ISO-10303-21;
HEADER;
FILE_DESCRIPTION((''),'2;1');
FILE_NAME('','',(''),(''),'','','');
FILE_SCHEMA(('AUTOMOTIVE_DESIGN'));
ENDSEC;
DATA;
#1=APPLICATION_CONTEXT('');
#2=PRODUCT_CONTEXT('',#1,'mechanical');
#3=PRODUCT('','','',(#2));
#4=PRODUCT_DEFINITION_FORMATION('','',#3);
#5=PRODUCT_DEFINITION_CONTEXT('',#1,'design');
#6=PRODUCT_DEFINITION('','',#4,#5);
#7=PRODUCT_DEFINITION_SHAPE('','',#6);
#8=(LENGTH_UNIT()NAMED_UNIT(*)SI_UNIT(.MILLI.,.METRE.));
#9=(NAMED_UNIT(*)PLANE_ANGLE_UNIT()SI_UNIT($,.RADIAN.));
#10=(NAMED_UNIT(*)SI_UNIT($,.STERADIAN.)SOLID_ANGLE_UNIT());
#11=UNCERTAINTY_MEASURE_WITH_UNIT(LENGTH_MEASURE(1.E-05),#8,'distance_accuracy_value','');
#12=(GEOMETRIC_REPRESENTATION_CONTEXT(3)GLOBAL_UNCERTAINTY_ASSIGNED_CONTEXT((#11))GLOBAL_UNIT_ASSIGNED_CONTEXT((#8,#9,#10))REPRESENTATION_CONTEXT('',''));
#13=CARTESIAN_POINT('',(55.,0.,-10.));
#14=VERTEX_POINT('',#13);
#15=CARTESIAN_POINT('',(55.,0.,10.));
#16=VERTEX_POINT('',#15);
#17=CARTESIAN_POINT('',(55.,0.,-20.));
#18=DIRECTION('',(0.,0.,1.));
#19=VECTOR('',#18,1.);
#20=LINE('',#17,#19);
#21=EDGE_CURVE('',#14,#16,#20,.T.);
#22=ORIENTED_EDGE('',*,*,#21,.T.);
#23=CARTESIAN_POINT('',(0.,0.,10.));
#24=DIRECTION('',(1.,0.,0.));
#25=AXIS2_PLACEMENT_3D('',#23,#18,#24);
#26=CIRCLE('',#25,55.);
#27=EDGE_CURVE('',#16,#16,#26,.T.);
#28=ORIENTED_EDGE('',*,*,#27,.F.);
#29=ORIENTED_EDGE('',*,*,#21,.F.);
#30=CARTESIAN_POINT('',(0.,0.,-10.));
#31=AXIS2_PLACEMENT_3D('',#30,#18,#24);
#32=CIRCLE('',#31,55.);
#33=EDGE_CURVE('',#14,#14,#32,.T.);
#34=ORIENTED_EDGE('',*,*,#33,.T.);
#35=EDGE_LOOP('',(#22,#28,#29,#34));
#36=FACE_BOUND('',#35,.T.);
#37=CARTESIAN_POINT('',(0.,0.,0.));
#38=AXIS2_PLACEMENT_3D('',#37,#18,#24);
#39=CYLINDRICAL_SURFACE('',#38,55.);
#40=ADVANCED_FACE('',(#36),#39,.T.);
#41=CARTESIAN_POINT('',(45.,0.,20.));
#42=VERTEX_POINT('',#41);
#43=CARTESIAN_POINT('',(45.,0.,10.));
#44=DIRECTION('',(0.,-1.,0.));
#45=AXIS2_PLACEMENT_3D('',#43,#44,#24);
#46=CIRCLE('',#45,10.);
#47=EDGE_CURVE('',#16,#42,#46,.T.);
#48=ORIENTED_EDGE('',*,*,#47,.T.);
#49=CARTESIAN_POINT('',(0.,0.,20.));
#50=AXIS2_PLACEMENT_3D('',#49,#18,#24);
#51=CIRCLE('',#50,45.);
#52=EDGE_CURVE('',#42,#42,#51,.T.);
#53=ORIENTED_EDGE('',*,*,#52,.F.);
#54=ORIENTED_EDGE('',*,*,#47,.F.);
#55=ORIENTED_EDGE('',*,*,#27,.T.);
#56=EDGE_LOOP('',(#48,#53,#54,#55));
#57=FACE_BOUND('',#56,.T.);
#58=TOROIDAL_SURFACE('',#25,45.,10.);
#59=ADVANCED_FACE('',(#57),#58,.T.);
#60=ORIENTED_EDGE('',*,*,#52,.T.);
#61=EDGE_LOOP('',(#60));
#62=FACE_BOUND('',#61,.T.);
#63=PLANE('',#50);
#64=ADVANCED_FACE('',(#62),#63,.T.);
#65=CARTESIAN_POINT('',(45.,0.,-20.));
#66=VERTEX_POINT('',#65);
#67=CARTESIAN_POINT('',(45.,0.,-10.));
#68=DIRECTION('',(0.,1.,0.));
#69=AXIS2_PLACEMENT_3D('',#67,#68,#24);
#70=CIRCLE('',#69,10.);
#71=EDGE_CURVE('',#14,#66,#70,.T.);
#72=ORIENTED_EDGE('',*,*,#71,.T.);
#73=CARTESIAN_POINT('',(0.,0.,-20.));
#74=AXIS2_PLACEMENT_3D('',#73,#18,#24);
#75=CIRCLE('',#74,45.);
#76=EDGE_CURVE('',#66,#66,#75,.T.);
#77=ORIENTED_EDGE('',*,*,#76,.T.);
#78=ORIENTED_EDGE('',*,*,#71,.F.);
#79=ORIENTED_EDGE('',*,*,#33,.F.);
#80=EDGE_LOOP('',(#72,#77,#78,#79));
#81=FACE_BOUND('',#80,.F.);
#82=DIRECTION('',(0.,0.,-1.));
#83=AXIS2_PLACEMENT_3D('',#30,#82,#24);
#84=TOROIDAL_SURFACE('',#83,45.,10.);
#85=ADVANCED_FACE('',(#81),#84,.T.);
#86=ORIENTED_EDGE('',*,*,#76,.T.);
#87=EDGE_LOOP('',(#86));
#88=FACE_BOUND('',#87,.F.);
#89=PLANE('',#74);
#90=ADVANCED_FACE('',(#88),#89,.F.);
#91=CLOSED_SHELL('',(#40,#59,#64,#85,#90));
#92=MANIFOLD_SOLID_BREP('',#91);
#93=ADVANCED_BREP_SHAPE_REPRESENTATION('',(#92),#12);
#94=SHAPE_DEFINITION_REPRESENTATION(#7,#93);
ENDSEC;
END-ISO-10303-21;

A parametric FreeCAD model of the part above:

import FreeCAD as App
import Part
import Sketcher

V = App.Vector


def edges_at(feature, points):
    """Names of the edges that pass closest to the given points."""
    edges = feature.Shape.Edges
    near = lambda p: min(range(len(edges)), key=lambda i: edges[i].distToShape(Part.Vertex(*p))[0])
    return sorted({f"Edge{near(p) + 1}" for p in points})

doc = App.newDocument("Part")
body = doc.addObject("PartDesign::Body", "Body")

# Sketch on XY plane
sketch1 = doc.addObject("Sketcher::SketchObject", "Sketch")
body.addObject(sketch1)
sketch1.AttachmentSupport = (doc.XY_Plane, [""])
sketch1.MapMode = "FlatFace"
sketch1.addGeometry(Part.Circle(V(0, 0, 0), V(0, 0, 1), 55), False)
sketch1.addConstraint([
    Sketcher.Constraint("Coincident", 0, 3, -1, 1),
    Sketcher.Constraint("Diameter", 0, 110.0),
])
pad1 = doc.addObject("PartDesign::Pad", "Pad")
body.addObject(pad1)
pad1.Profile = sketch1
pad1.Type = "TwoLengths"
pad1.Length = 20
pad1.Length2 = 20
doc.recompute()

fillet = doc.addObject("PartDesign::Fillet", "Fillet")
body.addObject(fillet)
fillet.Base = (pad1, edges_at(pad1, [(-55, 0, -20), (-55, 0, 20)]))
fillet.Radius = 10

doc.recompute()
